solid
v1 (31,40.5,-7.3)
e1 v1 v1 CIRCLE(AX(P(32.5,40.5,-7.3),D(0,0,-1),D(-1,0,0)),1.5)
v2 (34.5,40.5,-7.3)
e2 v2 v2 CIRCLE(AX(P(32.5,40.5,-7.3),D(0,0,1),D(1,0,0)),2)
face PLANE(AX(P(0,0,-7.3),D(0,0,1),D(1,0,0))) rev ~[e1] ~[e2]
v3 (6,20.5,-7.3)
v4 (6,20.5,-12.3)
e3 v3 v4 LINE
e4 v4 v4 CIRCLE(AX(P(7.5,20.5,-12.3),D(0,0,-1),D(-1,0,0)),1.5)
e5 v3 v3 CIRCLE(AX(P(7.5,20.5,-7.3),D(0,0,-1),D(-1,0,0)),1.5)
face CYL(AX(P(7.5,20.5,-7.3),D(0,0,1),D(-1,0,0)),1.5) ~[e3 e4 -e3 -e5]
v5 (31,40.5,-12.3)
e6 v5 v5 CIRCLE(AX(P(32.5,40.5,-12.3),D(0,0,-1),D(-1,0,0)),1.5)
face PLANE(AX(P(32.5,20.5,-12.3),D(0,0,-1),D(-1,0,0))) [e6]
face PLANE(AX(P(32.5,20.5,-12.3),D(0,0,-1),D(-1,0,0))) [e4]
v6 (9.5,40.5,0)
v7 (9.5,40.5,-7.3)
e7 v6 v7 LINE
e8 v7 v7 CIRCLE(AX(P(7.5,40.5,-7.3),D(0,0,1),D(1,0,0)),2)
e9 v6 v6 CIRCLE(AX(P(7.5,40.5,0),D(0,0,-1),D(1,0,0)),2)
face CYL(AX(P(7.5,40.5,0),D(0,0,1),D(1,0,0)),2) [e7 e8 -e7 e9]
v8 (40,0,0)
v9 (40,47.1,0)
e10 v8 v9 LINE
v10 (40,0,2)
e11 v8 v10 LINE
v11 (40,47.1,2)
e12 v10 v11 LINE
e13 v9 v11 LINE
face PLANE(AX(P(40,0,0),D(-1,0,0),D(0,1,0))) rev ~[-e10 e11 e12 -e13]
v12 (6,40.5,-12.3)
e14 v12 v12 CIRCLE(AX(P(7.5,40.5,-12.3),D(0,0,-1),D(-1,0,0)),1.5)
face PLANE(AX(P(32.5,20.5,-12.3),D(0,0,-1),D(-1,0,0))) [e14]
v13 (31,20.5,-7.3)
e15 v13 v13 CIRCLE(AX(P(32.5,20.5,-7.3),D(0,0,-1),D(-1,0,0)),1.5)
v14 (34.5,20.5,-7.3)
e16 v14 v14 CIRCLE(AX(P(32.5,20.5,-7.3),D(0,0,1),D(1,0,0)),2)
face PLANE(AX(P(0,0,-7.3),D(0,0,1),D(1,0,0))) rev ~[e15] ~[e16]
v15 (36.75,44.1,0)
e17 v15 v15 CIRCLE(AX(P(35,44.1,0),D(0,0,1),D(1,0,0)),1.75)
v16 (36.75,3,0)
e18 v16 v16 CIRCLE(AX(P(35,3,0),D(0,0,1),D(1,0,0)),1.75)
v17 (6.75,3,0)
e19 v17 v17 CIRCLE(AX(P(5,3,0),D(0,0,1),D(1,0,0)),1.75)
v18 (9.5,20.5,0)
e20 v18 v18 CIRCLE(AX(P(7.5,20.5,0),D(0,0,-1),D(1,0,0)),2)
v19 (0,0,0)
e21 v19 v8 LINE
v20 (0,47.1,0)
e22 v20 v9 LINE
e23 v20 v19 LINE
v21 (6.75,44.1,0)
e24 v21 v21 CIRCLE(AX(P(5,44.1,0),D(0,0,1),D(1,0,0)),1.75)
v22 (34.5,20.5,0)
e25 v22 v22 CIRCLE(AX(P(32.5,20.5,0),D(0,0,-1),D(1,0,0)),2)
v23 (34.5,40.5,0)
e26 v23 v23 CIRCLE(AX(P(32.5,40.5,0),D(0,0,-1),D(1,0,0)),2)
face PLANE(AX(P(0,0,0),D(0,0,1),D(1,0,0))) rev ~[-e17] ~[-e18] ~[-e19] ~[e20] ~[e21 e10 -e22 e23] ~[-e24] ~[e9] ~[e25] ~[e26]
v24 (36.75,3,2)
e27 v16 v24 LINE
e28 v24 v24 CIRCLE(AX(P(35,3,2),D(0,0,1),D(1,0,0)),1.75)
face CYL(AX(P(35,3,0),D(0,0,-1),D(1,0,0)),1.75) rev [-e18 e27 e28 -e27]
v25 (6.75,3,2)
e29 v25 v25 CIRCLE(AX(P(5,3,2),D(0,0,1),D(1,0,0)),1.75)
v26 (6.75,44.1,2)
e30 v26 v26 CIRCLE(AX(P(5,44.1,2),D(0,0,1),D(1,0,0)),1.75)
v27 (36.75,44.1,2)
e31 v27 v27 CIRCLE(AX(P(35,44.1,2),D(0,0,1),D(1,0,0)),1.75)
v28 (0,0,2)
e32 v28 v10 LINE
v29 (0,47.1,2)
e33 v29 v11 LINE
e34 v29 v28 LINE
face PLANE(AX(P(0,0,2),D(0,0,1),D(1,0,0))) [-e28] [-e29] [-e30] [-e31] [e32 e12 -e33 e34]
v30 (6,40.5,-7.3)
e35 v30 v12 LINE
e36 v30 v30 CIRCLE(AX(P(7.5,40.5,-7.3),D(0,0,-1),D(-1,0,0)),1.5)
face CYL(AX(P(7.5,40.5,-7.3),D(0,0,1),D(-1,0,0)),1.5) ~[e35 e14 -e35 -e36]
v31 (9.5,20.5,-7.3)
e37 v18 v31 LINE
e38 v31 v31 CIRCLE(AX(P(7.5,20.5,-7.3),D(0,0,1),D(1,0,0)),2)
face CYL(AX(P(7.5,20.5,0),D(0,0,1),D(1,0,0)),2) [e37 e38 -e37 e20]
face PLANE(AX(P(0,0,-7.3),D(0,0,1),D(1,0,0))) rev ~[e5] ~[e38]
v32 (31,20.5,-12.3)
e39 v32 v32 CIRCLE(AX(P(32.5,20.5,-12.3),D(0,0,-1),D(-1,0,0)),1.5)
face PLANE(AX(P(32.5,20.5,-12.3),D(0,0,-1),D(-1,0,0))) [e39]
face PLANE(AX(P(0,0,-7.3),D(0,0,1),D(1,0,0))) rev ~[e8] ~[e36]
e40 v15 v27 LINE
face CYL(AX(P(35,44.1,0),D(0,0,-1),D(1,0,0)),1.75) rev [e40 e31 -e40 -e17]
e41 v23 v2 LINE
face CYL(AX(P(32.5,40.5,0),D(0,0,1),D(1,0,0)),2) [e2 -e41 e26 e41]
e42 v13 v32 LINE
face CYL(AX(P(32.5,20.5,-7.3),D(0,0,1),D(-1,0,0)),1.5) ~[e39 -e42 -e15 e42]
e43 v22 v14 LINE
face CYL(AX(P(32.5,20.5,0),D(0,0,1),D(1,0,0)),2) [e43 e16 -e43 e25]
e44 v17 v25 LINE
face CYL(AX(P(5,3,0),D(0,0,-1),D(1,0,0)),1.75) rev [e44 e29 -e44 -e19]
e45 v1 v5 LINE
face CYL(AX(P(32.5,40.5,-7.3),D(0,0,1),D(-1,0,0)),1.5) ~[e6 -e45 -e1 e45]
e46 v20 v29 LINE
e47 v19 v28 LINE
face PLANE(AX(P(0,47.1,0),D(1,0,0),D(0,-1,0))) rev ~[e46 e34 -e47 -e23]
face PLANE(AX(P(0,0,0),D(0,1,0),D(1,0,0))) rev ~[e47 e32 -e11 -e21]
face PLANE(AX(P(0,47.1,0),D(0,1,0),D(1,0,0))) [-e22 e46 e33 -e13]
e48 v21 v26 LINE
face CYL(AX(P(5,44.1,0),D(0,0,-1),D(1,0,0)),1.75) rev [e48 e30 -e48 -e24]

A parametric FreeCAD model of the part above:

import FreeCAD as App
import Part
import Sketcher
Q = App.Units.Quantity

doc = App.newDocument("Part")
params = doc.addObject("Spreadsheet::Sheet", "Params")
for row, (alias, value) in enumerate([
    ("sketch1_diameter", "3.5 mm"),
    ("sketch1_width", "40 mm"),
    ("pad1_length", "2 mm"),
    ("sketch2_diameter", "4 mm"),
    ("pad2_length", "7.3 mm"),
    ("sketch3_diameter", "3 mm"),
    ("pad3_length", "5 mm"),
], start=1):
    params.set(f"A{row}", alias)
    params.set(f"B{row}", "=" + value)
    params.setAlias(f"B{row}", alias)

body = doc.addObject("PartDesign::Body", "Body")

sketch1 = body.newObject("Sketcher::SketchObject", "Sketch")
sketch1.AttachmentSupport = (doc.getObject("XY_Plane"), [""])
sketch1.MapMode = "FlatFace"
sketch1.addGeometry(Part.LineSegment(App.Vector(0, 47.1, 0), App.Vector(0, 0, 0)), False)
sketch1.addGeometry(Part.LineSegment(App.Vector(0, 0, 0), App.Vector(40, 0, 0)), False)
sketch1.addGeometry(Part.LineSegment(App.Vector(40, 0, 0), App.Vector(40, 47.1, 0)), False)
sketch1.addGeometry(Part.LineSegment(App.Vector(40, 47.1, 0), App.Vector(0, 47.1, 0)), False)
sketch1.addGeometry(Part.Circle(App.Vector(5, 3, 0), App.Vector(0, 0, 1), 1.8), False)
sketch1.addGeometry(Part.Circle(App.Vector(35, 3, 0), App.Vector(0, 0, 1), 1.8), False)
sketch1.addGeometry(Part.Circle(App.Vector(5, 44.1, 0), App.Vector(0, 0, 1), 1.8), False)
sketch1.addGeometry(Part.Circle(App.Vector(35, 44.1, 0), App.Vector(0, 0, 1), 1.8), False)
sketch1.addConstraint(Sketcher.Constraint("Coincident", 0, 2, 1, 1))
sketch1.addConstraint(Sketcher.Constraint("Coincident", 1, 2, 2, 1))
sketch1.addConstraint(Sketcher.Constraint("Coincident", 2, 2, 3, 1))
sketch1.addConstraint(Sketcher.Constraint("Coincident", 3, 2, 0, 1))
sketch1.addConstraint(Sketcher.Constraint("Vertical", 0))
sketch1.addConstraint(Sketcher.Constraint("Horizontal", 1))
sketch1.addConstraint(Sketcher.Constraint("Vertical", 2))
sketch1.addConstraint(Sketcher.Constraint("Horizontal", 3))
sketch1.addConstraint(Sketcher.Constraint("Coincident", 0, 2, -1, 1))
sketch1.addConstraint(Sketcher.Constraint("Equal", 4, 5))
sketch1.addConstraint(Sketcher.Constraint("Equal", 5, 6))
sketch1.addConstraint(Sketcher.Constraint("Equal", 6, 7))
sketch1.addConstraint(Sketcher.Constraint("Horizontal", 4, 3, 5, 3))
sketch1.addConstraint(Sketcher.Constraint("Horizontal", 6, 3, 7, 3))
sketch1.addConstraint(Sketcher.Constraint("Vertical", 4, 3, 6, 3))
sketch1.addConstraint(Sketcher.Constraint("Vertical", 5, 3, 7, 3))
sketch1.addConstraint(Sketcher.Constraint("Diameter", 4, Q("3.5 mm")))
sketch1.addConstraint(Sketcher.Constraint("DistanceX", 1, 1, 1, 2, Q("40 mm")))
sketch1.addConstraint(Sketcher.Constraint("DistanceX", -1, 1, 4, 3, Q("5 mm")))
sketch1.addConstraint(Sketcher.Constraint("DistanceY", -1, 1, 4, 3, Q("3 mm")))
sketch1.addConstraint(Sketcher.Constraint("DistanceX", 5, 3, 1, 2, Q("5 mm")))
sketch1.addConstraint(Sketcher.Constraint("DistanceY", 7, 3, 2, 2, Q("3 mm")))
sketch1.addConstraint(Sketcher.Constraint("DistanceY", 4, 3, 6, 3, Q("41.1 mm")))
sketch1.setExpression("Constraints[16]", "Params.sketch1_diameter")
sketch1.setExpression("Constraints[17]", "Params.sketch1_width")
pad1 = body.newObject("PartDesign::Pad", "Pad")
pad1.Profile = sketch1
pad1.setExpression("Length", "Params.pad1_length")

sketch2 = body.newObject("Sketcher::SketchObject", "Sketch001")
sketch2.AttachmentSupport = (doc.getObject("XY_Plane"), [""])
sketch2.MapMode = "FlatFace"
sketch2.addGeometry(Part.Circle(App.Vector(7.5, 20.5, 0), App.Vector(0, 0, 1), 2), False)
sketch2.addGeometry(Part.Circle(App.Vector(32.5, 20.5, 0), App.Vector(0, 0, 1), 2), False)
sketch2.addGeometry(Part.Circle(App.Vector(7.5, 40.5, 0), App.Vector(0, 0, 1), 2), False)
sketch2.addGeometry(Part.Circle(App.Vector(32.5, 40.5, 0), App.Vector(0, 0, 1), 2), False)
sketch2.addConstraint(Sketcher.Constraint("Equal", 0, 1))
sketch2.addConstraint(Sketcher.Constraint("Equal", 1, 2))
sketch2.addConstraint(Sketcher.Constraint("Equal", 2, 3))
sketch2.addConstraint(Sketcher.Constraint("Horizontal", 0, 3, 1, 3))
sketch2.addConstraint(Sketcher.Constraint("Horizontal", 2, 3, 3, 3))
sketch2.addConstraint(Sketcher.Constraint("Vertical", 0, 3, 2, 3))
sketch2.addConstraint(Sketcher.Constraint("Vertical", 1, 3, 3, 3))
sketch2.addConstraint(Sketcher.Constraint("Diameter", 0, Q("4 mm")))
sketch2.addConstraint(Sketcher.Constraint("DistanceX", 0, 3, 1, 3, Q("25 mm")))
sketch2.addConstraint(Sketcher.Constraint("DistanceY", 0, 3, 2, 3, Q("20 mm")))
sketch2.addConstraint(Sketcher.Constraint("DistanceX", -1, 1, 0, 3, Q("7.5 mm")))
sketch2.addConstraint(Sketcher.Constraint("DistanceY", -1, 1, 0, 3, Q("20.5 mm")))
sketch2.setExpression("Constraints[7]", "Params.sketch2_diameter")
pad2 = body.newObject("PartDesign::Pad", "Pad001")
pad2.Profile = sketch2
pad2.setExpression("Length", "Params.pad2_length")
pad2.Reversed = True

sketch3 = body.newObject("Sketcher::SketchObject", "Sketch002")
sketch3.AttachmentSupport = (doc.getObject("XY_Plane"), [""])
sketch3.MapMode = "FlatFace"
sketch3.AttachmentOffset = App.Placement(App.Vector(0, 0, -7.3), App.Rotation())
sketch3.addGeometry(Part.Circle(App.Vector(32.5, 40.5, 0), App.Vector(0, 0, 1), 1.5), False)
sketch3.addGeometry(Part.Circle(App.Vector(32.5, 20.5, 0), App.Vector(0, 0, 1), 1.5), False)
sketch3.addGeometry(Part.Circle(App.Vector(7.5, 20.5, 0), App.Vector(0, 0, 1), 1.5), False)
sketch3.addGeometry(Part.Circle(App.Vector(7.5, 40.5, 0), App.Vector(0, 0, 1), 1.5), False)
sketch3.addConstraint(Sketcher.Constraint("Equal", 0, 1))
sketch3.addConstraint(Sketcher.Constraint("Equal", 1, 2))
sketch3.addConstraint(Sketcher.Constraint("Equal", 2, 3))
sketch3.addConstraint(Sketcher.Constraint("Horizontal", 1, 3, 2, 3))
sketch3.addConstraint(Sketcher.Constraint("Horizontal", 0, 3, 3, 3))
sketch3.addConstraint(Sketcher.Constraint("Vertical", 0, 3, 1, 3))
sketch3.addConstraint(Sketcher.Constraint("Vertical", 2, 3, 3, 3))
sketch3.addConstraint(Sketcher.Constraint("Diameter", 0, Q("3 mm")))
sketch3.addConstraint(Sketcher.Constraint("DistanceY", 1, 3, 0, 3, Q("20 mm")))
sketch3.addConstraint(Sketcher.Constraint("DistanceX", 2, 3, 1, 3, Q("25 mm")))
sketch3.addConstraint(Sketcher.Constraint("DistanceX", -1, 1, 0, 3, Q("32.5 mm")))
sketch3.addConstraint(Sketcher.Constraint("DistanceY", -1, 1, 0, 3, Q("40.5 mm")))
sketch3.setExpression("Constraints[7]", "Params.sketch3_diameter")
pad3 = body.newObject("PartDesign::Pad", "Pad002")
pad3.Profile = sketch3
pad3.setExpression("Length", "Params.pad3_length")
pad3.Reversed = True

doc.recompute()
